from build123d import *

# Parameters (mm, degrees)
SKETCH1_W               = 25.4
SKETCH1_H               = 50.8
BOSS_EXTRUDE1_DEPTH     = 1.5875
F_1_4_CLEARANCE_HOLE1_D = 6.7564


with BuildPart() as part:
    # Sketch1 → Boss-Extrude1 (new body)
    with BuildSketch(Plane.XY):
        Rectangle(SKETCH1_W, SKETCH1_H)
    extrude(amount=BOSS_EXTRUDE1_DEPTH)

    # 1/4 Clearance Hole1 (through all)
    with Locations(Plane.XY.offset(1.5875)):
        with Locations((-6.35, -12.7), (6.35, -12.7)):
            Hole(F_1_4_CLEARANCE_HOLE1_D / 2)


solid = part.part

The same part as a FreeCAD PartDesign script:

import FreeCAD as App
import Part
import Sketcher

V = App.Vector
Q = App.Units.Quantity

doc = App.newDocument("Part")
params = doc.addObject("Spreadsheet::Sheet", "Params")
for row, (alias, value) in enumerate([
    ("sketch1_width", "1 in"),
    ("sketch1_height", "2 in"),
    ("pad1_length", "0.0625 in"),
    ("sketch2_diameter", "0.266 in"),
    ("hole_diameter", "0.266 in"),
], start=1):
    params.set(f"A{row}", alias)
    params.set(f"B{row}", "=" + value)
    params.setAlias(f"B{row}", alias)

body = doc.addObject("PartDesign::Body", "Body")

sketch1 = body.newObject("Sketcher::SketchObject", "Sketch")
sketch1.AttachmentSupport = (doc.getObject("XY_Plane"), [""])
sketch1.MapMode = "FlatFace"
sketch1.addGeometry(Part.LineSegment(V(-12.7, 25.4, 0), V(-12.7, -25.4, 0)), False)
sketch1.addGeometry(Part.LineSegment(V(-12.7, -25.4, 0), V(12.7, -25.4, 0)), False)
sketch1.addGeometry(Part.LineSegment(V(12.7, -25.4, 0), V(12.7, 25.4, 0)), False)
sketch1.addGeometry(Part.LineSegment(V(12.7, 25.4, 0), V(-12.7, 25.4, 0)), False)
sketch1.addConstraint(Sketcher.Constraint("Coincident", 0, 2, 1, 1))
sketch1.addConstraint(Sketcher.Constraint("Coincident", 1, 2, 2, 1))
sketch1.addConstraint(Sketcher.Constraint("Coincident", 2, 2, 3, 1))
sketch1.addConstraint(Sketcher.Constraint("Coincident", 3, 2, 0, 1))
sketch1.addConstraint(Sketcher.Constraint("Vertical", 0))
sketch1.addConstraint(Sketcher.Constraint("Horizontal", 1))
sketch1.addConstraint(Sketcher.Constraint("Vertical", 2))
sketch1.addConstraint(Sketcher.Constraint("Horizontal", 3))
sketch1.addConstraint(Sketcher.Constraint("Symmetric", 0, 2, 2, 2, -1, 1))
sketch1.addConstraint(Sketcher.Constraint("DistanceX", 1, 1, 1, 2, Q("1 in")))
sketch1.addConstraint(Sketcher.Constraint("DistanceY", 0, 2, 0, 1, Q("2 in")))
sketch1.setExpression("Constraints[9]", "Params.sketch1_width")
sketch1.setExpression("Constraints[10]", "Params.sketch1_height")
pad1 = body.newObject("PartDesign::Pad", "Pad")
pad1.Profile = sketch1
pad1.setExpression("Length", "Params.pad1_length")

sketch2 = body.newObject("Sketcher::SketchObject", "Sketch001")
sketch2.AttachmentSupport = (doc.getObject("XY_Plane"), [""])
sketch2.MapMode = "FlatFace"
sketch2.AttachmentOffset = App.Placement(V(0, 0, 0.0625 * 25.4), App.Rotation())
sketch2.addGeometry(Part.Circle(V(-6.35, -12.7, 0), V(0, 0, 1), 3.3782), False)
sketch2.addGeometry(Part.Circle(V(6.35, -12.7, 0), V(0, 0, 1), 3.3782), False)
sketch2.addConstraint(Sketcher.Constraint("Equal", 0, 1))
sketch2.addConstraint(Sketcher.Constraint("Symmetric", 0, 3, 1, 3, -2))
sketch2.addConstraint(Sketcher.Constraint("Diameter", 0, Q("0.266 in")))
sketch2.addConstraint(Sketcher.Constraint("DistanceY", 0, 3, -1, 1, Q("0.5 in")))
sketch2.addConstraint(Sketcher.Constraint("DistanceX", 0, 3, 1, 3, Q("0.5 in")))
sketch2.setExpression("Constraints[2]", "Params.sketch2_diameter")
doc.recompute()
hole = body.newObject("PartDesign::Hole", "Hole")
hole.Profile = sketch2
hole.ThreadType = "None"
hole.setExpression("Diameter", "Params.hole_diameter")
hole.DepthType = "ThroughAll"

doc.recompute()
